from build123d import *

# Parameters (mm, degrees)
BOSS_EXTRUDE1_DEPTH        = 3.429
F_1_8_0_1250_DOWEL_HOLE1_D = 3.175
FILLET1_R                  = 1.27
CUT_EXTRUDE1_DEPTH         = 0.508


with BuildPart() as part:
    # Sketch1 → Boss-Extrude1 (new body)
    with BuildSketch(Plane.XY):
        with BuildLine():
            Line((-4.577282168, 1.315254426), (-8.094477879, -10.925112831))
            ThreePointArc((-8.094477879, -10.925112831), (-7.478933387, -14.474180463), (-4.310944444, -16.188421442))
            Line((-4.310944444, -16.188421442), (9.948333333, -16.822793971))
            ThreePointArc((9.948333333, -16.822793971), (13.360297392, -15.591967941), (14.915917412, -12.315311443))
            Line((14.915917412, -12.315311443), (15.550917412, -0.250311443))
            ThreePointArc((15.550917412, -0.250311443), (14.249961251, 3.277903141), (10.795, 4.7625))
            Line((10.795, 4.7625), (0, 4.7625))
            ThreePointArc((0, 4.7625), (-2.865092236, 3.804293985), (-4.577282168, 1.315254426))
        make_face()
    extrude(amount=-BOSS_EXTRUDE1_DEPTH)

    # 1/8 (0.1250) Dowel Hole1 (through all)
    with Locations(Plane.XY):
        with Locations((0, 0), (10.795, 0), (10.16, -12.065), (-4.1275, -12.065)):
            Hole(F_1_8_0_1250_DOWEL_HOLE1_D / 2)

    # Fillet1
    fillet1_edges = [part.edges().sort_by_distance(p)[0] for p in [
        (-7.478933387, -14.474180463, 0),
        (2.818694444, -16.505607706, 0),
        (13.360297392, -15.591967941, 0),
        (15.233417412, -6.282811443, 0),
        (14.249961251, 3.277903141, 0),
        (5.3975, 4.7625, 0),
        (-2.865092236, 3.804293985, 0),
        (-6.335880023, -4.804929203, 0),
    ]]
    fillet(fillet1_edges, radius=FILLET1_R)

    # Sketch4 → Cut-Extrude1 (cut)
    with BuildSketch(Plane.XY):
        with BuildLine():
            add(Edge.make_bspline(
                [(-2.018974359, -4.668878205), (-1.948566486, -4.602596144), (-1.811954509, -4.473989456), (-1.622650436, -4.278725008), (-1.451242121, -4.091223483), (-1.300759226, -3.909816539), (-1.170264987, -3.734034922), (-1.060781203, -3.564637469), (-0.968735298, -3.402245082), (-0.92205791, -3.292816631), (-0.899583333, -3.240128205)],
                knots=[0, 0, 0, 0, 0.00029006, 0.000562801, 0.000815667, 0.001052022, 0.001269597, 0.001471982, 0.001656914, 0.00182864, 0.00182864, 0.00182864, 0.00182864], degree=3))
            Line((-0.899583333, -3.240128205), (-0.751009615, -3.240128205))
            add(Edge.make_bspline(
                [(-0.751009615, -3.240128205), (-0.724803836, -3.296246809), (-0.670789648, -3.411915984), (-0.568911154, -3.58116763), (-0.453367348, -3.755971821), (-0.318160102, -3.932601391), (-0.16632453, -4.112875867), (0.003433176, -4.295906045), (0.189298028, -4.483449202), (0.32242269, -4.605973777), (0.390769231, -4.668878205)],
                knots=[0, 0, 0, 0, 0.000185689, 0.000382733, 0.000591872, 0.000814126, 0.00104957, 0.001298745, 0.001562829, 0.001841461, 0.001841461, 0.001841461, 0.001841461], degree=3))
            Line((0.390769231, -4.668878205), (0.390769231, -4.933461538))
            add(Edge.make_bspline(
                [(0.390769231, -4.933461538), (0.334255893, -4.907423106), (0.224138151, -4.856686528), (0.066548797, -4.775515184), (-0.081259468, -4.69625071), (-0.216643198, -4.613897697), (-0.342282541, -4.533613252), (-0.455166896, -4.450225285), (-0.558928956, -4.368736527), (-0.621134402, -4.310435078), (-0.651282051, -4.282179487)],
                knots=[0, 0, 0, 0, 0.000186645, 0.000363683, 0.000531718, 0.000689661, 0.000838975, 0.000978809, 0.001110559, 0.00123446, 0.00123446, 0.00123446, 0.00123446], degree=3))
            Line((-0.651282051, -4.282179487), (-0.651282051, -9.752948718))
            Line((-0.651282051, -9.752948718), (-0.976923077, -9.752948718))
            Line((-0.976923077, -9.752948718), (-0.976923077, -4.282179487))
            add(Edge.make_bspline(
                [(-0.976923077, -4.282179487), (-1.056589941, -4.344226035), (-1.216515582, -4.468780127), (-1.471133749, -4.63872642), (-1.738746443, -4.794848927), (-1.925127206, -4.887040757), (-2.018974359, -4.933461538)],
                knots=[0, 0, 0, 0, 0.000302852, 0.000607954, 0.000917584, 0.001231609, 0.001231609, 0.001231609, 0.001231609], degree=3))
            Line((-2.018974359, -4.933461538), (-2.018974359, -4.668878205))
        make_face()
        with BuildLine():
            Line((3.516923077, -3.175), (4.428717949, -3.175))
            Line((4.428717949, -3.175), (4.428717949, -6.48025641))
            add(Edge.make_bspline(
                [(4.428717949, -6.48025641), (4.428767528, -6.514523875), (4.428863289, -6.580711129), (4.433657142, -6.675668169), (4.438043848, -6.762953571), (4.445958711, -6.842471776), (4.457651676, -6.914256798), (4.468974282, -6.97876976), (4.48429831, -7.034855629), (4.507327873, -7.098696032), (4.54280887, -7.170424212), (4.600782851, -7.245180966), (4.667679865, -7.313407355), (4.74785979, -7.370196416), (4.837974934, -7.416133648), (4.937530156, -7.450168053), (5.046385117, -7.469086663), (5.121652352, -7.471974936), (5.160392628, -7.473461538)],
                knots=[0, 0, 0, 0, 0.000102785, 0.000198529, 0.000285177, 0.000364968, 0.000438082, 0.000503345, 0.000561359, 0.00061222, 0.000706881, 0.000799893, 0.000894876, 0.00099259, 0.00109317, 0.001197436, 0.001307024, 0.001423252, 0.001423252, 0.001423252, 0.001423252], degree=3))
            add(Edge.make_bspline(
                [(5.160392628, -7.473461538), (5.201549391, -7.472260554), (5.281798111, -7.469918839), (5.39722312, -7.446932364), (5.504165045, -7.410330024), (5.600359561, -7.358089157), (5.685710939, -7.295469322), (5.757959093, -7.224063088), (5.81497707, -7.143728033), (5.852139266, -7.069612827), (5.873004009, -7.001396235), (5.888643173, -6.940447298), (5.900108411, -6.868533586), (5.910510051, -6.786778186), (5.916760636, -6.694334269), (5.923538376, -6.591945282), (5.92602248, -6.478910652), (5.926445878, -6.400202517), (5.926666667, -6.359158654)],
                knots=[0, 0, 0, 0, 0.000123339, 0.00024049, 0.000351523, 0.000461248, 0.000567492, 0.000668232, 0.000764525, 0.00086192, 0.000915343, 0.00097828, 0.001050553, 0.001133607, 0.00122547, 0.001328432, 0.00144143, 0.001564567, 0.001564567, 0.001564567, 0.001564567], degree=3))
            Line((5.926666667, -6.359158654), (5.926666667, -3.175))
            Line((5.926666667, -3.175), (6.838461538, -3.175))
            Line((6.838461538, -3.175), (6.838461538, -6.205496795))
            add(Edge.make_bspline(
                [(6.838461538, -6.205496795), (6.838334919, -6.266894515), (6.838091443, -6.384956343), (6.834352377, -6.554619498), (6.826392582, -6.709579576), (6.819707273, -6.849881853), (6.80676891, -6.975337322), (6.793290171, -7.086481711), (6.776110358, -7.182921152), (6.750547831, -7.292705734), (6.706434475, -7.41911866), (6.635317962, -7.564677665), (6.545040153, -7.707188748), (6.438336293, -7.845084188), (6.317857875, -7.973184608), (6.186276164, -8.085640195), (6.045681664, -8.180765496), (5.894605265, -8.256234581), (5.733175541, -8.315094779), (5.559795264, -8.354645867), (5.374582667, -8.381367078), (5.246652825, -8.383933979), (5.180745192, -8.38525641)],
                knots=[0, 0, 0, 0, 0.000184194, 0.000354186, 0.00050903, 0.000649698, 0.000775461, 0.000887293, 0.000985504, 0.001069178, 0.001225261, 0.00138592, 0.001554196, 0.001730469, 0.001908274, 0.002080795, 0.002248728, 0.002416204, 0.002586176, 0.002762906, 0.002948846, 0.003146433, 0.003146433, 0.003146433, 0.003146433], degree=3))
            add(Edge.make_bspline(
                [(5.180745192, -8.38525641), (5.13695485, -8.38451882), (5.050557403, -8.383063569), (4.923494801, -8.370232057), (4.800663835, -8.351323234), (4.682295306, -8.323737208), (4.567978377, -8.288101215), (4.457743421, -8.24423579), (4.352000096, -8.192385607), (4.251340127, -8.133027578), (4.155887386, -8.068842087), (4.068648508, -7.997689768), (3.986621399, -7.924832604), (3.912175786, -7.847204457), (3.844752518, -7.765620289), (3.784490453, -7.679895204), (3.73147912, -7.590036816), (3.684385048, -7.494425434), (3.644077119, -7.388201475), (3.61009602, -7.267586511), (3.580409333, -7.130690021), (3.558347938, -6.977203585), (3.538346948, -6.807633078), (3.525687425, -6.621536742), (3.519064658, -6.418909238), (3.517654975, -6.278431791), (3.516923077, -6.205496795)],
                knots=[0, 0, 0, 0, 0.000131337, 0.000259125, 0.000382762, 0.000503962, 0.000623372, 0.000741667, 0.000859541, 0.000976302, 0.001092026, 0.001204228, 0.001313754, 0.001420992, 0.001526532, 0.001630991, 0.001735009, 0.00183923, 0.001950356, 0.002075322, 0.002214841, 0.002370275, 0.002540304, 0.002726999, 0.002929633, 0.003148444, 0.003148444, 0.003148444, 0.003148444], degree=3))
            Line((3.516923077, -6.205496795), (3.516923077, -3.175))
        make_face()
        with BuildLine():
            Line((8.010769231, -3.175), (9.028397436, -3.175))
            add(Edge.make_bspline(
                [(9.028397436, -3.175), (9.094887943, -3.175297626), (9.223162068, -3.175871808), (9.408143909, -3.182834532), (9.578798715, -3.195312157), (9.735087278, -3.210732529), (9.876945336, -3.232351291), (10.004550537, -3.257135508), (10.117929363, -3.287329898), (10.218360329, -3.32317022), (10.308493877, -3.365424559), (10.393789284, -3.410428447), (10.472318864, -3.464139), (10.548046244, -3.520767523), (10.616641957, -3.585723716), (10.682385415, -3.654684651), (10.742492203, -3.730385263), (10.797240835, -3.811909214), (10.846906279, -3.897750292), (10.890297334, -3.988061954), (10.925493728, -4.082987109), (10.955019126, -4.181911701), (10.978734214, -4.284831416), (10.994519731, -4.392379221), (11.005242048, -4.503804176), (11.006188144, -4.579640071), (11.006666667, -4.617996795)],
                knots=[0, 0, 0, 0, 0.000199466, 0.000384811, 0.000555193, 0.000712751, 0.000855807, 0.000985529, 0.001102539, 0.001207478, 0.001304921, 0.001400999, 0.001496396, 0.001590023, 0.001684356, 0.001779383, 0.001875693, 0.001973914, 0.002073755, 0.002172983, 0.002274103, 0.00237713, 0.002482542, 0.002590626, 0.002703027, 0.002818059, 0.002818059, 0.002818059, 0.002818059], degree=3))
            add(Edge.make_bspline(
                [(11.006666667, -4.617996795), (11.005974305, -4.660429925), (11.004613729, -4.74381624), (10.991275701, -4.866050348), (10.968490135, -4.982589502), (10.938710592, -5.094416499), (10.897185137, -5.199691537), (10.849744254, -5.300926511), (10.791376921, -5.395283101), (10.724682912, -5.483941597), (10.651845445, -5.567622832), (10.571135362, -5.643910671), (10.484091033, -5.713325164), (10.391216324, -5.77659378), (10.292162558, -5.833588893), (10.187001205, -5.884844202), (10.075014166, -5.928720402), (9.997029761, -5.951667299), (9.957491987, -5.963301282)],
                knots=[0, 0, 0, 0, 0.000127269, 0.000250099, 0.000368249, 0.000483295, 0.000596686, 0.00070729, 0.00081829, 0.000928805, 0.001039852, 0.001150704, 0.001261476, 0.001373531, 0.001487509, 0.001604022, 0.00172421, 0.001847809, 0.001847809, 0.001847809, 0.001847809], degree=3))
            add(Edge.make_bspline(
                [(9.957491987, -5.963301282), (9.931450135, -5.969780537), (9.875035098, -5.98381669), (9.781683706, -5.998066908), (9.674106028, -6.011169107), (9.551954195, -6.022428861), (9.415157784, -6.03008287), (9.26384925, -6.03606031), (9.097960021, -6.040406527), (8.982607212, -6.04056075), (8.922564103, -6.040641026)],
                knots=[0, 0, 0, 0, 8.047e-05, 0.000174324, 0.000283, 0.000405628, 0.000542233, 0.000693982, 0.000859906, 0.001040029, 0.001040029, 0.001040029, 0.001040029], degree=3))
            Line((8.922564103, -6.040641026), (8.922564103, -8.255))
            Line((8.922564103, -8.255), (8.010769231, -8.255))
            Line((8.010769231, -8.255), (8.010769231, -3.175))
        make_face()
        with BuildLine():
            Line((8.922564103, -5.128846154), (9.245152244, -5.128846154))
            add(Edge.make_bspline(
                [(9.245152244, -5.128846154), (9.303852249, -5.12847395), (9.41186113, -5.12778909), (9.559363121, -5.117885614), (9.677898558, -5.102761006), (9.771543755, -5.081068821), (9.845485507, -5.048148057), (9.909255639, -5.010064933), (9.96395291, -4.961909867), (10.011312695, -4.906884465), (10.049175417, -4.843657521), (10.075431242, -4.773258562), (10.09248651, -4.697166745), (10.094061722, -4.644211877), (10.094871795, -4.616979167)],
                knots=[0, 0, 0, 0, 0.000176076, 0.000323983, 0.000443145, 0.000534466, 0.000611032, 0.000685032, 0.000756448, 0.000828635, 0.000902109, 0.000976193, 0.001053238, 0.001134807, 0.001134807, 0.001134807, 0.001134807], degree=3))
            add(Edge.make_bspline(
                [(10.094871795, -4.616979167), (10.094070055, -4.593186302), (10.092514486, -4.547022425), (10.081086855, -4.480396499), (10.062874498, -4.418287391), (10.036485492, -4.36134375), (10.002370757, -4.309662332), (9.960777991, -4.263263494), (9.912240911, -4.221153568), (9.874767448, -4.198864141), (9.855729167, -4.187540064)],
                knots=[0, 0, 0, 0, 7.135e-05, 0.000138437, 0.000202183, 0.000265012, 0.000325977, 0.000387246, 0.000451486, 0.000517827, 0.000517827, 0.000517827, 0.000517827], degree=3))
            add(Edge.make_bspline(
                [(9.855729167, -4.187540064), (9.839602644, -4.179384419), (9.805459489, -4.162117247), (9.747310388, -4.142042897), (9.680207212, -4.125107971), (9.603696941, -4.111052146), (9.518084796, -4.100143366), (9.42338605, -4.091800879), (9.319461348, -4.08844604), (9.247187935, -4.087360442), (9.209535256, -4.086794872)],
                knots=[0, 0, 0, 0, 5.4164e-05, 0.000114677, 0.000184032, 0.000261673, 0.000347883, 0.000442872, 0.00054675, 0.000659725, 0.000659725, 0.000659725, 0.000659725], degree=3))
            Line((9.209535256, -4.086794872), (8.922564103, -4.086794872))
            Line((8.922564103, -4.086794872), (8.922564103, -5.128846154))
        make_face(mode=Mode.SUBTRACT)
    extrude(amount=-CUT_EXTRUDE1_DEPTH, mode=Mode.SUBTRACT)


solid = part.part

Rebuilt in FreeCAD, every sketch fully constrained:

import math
import FreeCAD as App
import Part
import Sketcher

V = App.Vector
Q = App.Units.Quantity


def edges_at(feature, points):
    """Names of the edges that pass closest to the given points."""
    edges = feature.Shape.Edges
    near = lambda p: min(range(len(edges)), key=lambda i: edges[i].distToShape(Part.Vertex(*p))[0])
    return sorted({f"Edge{near(p) + 1}" for p in points})

doc = App.newDocument("Part")
params = doc.addObject("Spreadsheet::Sheet", "Params")
for row, (alias, value) in enumerate([
    ("sketch1_radius", "0.1875 in"),
    ("sketch1_width", "0.425 in"),
    ("pad1_length", "0.135 in"),
    ("sketch2_diameter", "0.125 in"),
    ("hole_diameter", "0.125 in"),
    ("fillet_radius", "0.05 in"),
    ("sketch3_height", "0.2 in"),
    ("pocket1_length", "0.02 in"),
], start=1):
    params.set(f"A{row}", alias)
    params.set(f"B{row}", "=" + value)
    params.setAlias(f"B{row}", alias)

body = doc.addObject("PartDesign::Body", "Body")

sketch1 = body.newObject("Sketcher::SketchObject", "Sketch")
sketch1.AttachmentSupport = (doc.getObject("XY_Plane"), [""])
sketch1.MapMode = "FlatFace"
sketch1.addGeometry([
    Part.LineSegment(V(-4.6, 1.3, 0), V(-8.1, -10.9, 0)),
    Part.ArcOfCircle(Part.Circle(V(-4.1, -12.1, 0), V(0, 0, 1), 4.1), math.radians(164), math.radians(267)),
    Part.LineSegment(V(-4.3, -16.2, 0), V(9.9, -16.8, 0)),
    Part.ArcOfCircle(Part.Circle(V(10.2, -12.1, 0), V(0, 0, 1), 4.8), math.radians(-93), math.radians(-3)),
    Part.LineSegment(V(14.9, -12.3, 0), V(15.6, -0.3, 0)),
    Part.ArcOfCircle(Part.Circle(V(10.8, 0, 0), V(0, 0, 1), 4.8), math.radians(-3), math.radians(90)),
    Part.LineSegment(V(10.8, 4.8, 0), V(0, 4.8, 0)),
    Part.ArcOfCircle(Part.Circle(V(0, 0, 0), V(0, 0, 1), 4.8), math.radians(90), math.radians(164)),
], False)
sketch1.addConstraint([
    Sketcher.Constraint("Tangent", 0, 2, 1, 1),
    Sketcher.Constraint("Tangent", 1, 2, 2, 1),
    Sketcher.Constraint("Tangent", 2, 2, 3, 1),
    Sketcher.Constraint("Tangent", 3, 2, 4, 1),
    Sketcher.Constraint("Tangent", 4, 2, 5, 1),
    Sketcher.Constraint("Tangent", 5, 2, 6, 1),
    Sketcher.Constraint("Tangent", 6, 2, 7, 1),
    Sketcher.Constraint("Tangent", 7, 2, 0, 1),
    Sketcher.Constraint("Horizontal", 6),
    Sketcher.Constraint("Coincident", 7, 3, -1, 1),
    Sketcher.Constraint("Equal", 3, 5),
    Sketcher.Constraint("Equal", 5, 7),
    Sketcher.Constraint("Horizontal", 1, 3, 3, 3),
    Sketcher.Constraint("Radius", 3, Q("0.1875 in")),
    Sketcher.Constraint("DistanceX", -1, 1, 3, 3, Q("0.4 in")),
    Sketcher.Constraint("Radius", 1, Q("0.1625 in")),
    Sketcher.Constraint("DistanceX", 6, 2, 6, 1, Q("0.425 in")),
    Sketcher.Constraint("DistanceY", 1, 3, -1, 1, Q("0.475 in")),
    Sketcher.Constraint("DistanceX", 1, 3, 3, 3, Q("0.5625 in")),
])
sketch1.setExpression("Constraints[13]", "Params.sketch1_radius")
sketch1.setExpression("Constraints[16]", "Params.sketch1_width")
pad1 = body.newObject("PartDesign::Pad", "Pad")
pad1.Profile = sketch1
pad1.setExpression("Length", "Params.pad1_length")
pad1.Reversed = True

sketch2 = body.newObject("Sketcher::SketchObject", "Sketch001")
sketch2.AttachmentSupport = (doc.getObject("XY_Plane"), [""])
sketch2.MapMode = "FlatFace"
sketch2.addGeometry([
    Part.Circle(V(0, 0, 0), V(0, 0, 1), 1.6),
    Part.Circle(V(10.8, 0, 0), V(0, 0, 1), 1.6),
    Part.Circle(V(10.2, -12.1, 0), V(0, 0, 1), 1.6),
    Part.Circle(V(-4.1, -12.1, 0), V(0, 0, 1), 1.6),
], False)
sketch2.addConstraint([
    Sketcher.Constraint("Coincident", 0, 3, -1, 1),
    Sketcher.Constraint("Equal", 0, 1),
    Sketcher.Constraint("Equal", 1, 2),
    Sketcher.Constraint("Equal", 2, 3),
    Sketcher.Constraint("PointOnObject", 1, 3, -1),
    Sketcher.Constraint("Horizontal", 2, 3, 3, 3),
    Sketcher.Constraint("Diameter", 0, Q("0.125 in")),
    Sketcher.Constraint("DistanceX", -1, 1, 2, 3, Q("0.4 in")),
    Sketcher.Constraint("DistanceX", -1, 1, 1, 3, Q("0.425 in")),
    Sketcher.Constraint("DistanceY", 2, 3, -1, 1, Q("0.475 in")),
    Sketcher.Constraint("DistanceX", 3, 3, 2, 3, Q("0.5625 in")),
])
sketch2.setExpression("Constraints[6]", "Params.sketch2_diameter")
doc.recompute()
hole = body.newObject("PartDesign::Hole", "Hole")
hole.Profile = sketch2
hole.ThreadType = "None"
hole.setExpression("Diameter", "Params.hole_diameter")
hole.DepthType = "ThroughAll"
doc.recompute()

fillet = body.newObject("PartDesign::Fillet", "Fillet")
fillet.Base = (hole, edges_at(hole, [
    (-7.479, -14.474, 0),
    (2.819, -16.506, 0),
    (13.36, -15.592, 0),
    (15.233, -6.283, 0),
    (14.25, 3.278, 0),
    (5.397, 4.763, 0),
    (-2.865, 3.804, 0),
    (-6.336, -4.805, 0),
]))
fillet.setExpression("Radius", "Params.fillet_radius")

sketch3 = body.newObject("Sketcher::SketchObject", "Sketch002")
sketch3.AttachmentSupport = (doc.getObject("XY_Plane"), [""])
sketch3.MapMode = "FlatFace"
sketch3.addGeometry([
    Part.BSplineCurve([V(-2.018974, -4.668878, 0), V(-1.948566, -4.602596, 0), V(-1.811955, -4.473989, 0), V(-1.62265, -4.278725, 0), V(-1.451242, -4.091223, 0), V(-1.300759, -3.909817, 0), V(-1.170265, -3.734035, 0), V(-1.060781, -3.564637, 0), V(-0.968735, -3.402245, 0), V(-0.922058, -3.292817, 0), V(-0.899583, -3.240128, 0)], [4, 1, 1, 1, 1, 1, 1, 1, 4], [0, 0.00029006, 0.000562801, 0.000815667, 0.001052022, 0.001269597, 0.001471982, 0.001656914, 0.00182864], False, 3, [1, 1, 1, 1, 1, 1, 1, 1, 1, 1, 1], False),
    Part.LineSegment(V(-2.018974, -4.668878, 0), V(-2.018974, -4.933462, 0)),
    Part.BSplineCurve([V(-0.976923, -4.282179, 0), V(-1.05659, -4.344226, 0), V(-1.216516, -4.46878, 0), V(-1.471134, -4.638726, 0), V(-1.738746, -4.794849, 0), V(-1.925127, -4.887041, 0), V(-2.018974, -4.933462, 0)], [4, 1, 1, 1, 4], [0, 0.000302852, 0.000607954, 0.000917584, 0.001231609], False, 3, [1, 1, 1, 1, 1, 1, 1], False),
    Part.LineSegment(V(-0.976923, -4.282179, 0), V(-0.976923, -9.752949, 0)),
    Part.LineSegment(V(-0.976923, -9.752949, 0), V(-0.651282, -9.752949, 0)),
    Part.LineSegment(V(-0.651282, -9.752949, 0), V(-0.651282, -4.282179, 0)),
    Part.BSplineCurve([V(0.390769, -4.933462, 0), V(0.334256, -4.907423, 0), V(0.224138, -4.856687, 0), V(0.066549, -4.775515, 0), V(-0.081259, -4.696251, 0), V(-0.216643, -4.613898, 0), V(-0.342283, -4.533613, 0), V(-0.455167, -4.450225, 0), V(-0.558929, -4.368737, 0), V(-0.621134, -4.310435, 0), V(-0.651282, -4.282179, 0)], [4, 1, 1, 1, 1, 1, 1, 1, 4], [0, 0.000186645, 0.000363683, 0.000531718, 0.000689661, 0.000838975, 0.000978809, 0.001110559, 0.00123446], False, 3, [1, 1, 1, 1, 1, 1, 1, 1, 1, 1, 1], False),
    Part.LineSegment(V(0.390769, -4.933462, 0), V(0.390769, -4.668878, 0)),
    Part.BSplineCurve([V(-0.75101, -3.240128, 0), V(-0.724804, -3.296247, 0), V(-0.67079, -3.411916, 0), V(-0.568911, -3.581168, 0), V(-0.453367, -3.755972, 0), V(-0.31816, -3.932601, 0), V(-0.166325, -4.112876, 0), V(0.003433, -4.295906, 0), V(0.189298, -4.483449, 0), V(0.322423, -4.605974, 0), V(0.390769, -4.668878, 0)], [4, 1, 1, 1, 1, 1, 1, 1, 4], [0, 0.000185689, 0.000382733, 0.000591872, 0.000814126, 0.00104957, 0.001298745, 0.001562829, 0.001841461], False, 3, [1, 1, 1, 1, 1, 1, 1, 1, 1, 1, 1], False),
    Part.LineSegment(V(-0.75101, -3.240128, 0), V(-0.899583, -3.240128, 0)),
    Part.LineSegment(V(4.428718, -3.175, 0), V(3.516923, -3.175, 0)),
    Part.LineSegment(V(3.516923, -3.175, 0), V(3.516923, -6.205497, 0)),
    Part.BSplineCurve([V(5.180745, -8.385256, 0), V(5.136955, -8.384519, 0), V(5.050557, -8.383064, 0), V(4.923495, -8.370232, 0), V(4.800664, -8.351323, 0), V(4.682295, -8.323737, 0), V(4.567978, -8.288101, 0), V(4.457743, -8.244236, 0), V(4.352, -8.192386, 0), V(4.25134, -8.133028, 0), V(4.155887, -8.068842, 0), V(4.068649, -7.99769, 0), V(3.986621, -7.924833, 0), V(3.912176, -7.847204, 0), V(3.844753, -7.76562, 0), V(3.78449, -7.679895, 0), V(3.731479, -7.590037, 0), V(3.684385, -7.494425, 0), V(3.644077, -7.388201, 0), V(3.610096, -7.267587, 0), V(3.580409, -7.13069, 0), V(3.558348, -6.977204, 0), V(3.538347, -6.807633, 0), V(3.525687, -6.621537, 0), V(3.519065, -6.418909, 0), V(3.517655, -6.278432, 0), V(3.516923, -6.205497, 0)], [4, 1, 1, 1, 1, 1, 1, 1, 1, 1, 1, 1, 1, 1, 1, 1, 1, 1, 1, 1, 1, 1, 1, 1, 4], [0, 0.000131337, 0.000259125, 0.000382762, 0.000503962, 0.000623372, 0.000741667, 0.000859541, 0.000976302, 0.001092026, 0.001204228, 0.001313754, 0.001420992, 0.001526532, 0.001630991, 0.001735009, 0.00183923, 0.001950356, 0.002075322, 0.002214841, 0.002370275, 0.002540304, 0.002726999, 0.002929633, 0.003148444], False, 3, [1, 1, 1, 1, 1, 1, 1, 1, 1, 1, 1, 1, 1, 1, 1, 1, 1, 1, 1, 1, 1, 1, 1, 1, 1, 1, 1], False),
    Part.BSplineCurve([V(6.838462, -6.205497, 0), V(6.838335, -6.266895, 0), V(6.838091, -6.384956, 0), V(6.834352, -6.554619, 0), V(6.826393, -6.70958, 0), V(6.819707, -6.849882, 0), V(6.806769, -6.975337, 0), V(6.79329, -7.086482, 0), V(6.77611, -7.182921, 0), V(6.750548, -7.292706, 0), V(6.706434, -7.419119, 0), V(6.635318, -7.564678, 0), V(6.54504, -7.707189, 0), V(6.438336, -7.845084, 0), V(6.317858, -7.973185, 0), V(6.186276, -8.08564, 0), V(6.045682, -8.180765, 0), V(5.894605, -8.256235, 0), V(5.733176, -8.315095, 0), V(5.559795, -8.354646, 0), V(5.374583, -8.381367, 0), V(5.246653, -8.383934, 0), V(5.180745, -8.385256, 0)], [4, 1, 1, 1, 1, 1, 1, 1, 1, 1, 1, 1, 1, 1, 1, 1, 1, 1, 1, 1, 4], [0, 0.000184194, 0.000354186, 0.00050903, 0.000649698, 0.000775461, 0.000887293, 0.000985504, 0.001069178, 0.001225261, 0.00138592, 0.001554196, 0.001730469, 0.001908274, 0.002080795, 0.002248728, 0.002416204, 0.002586176, 0.002762906, 0.002948846, 0.003146433], False, 3, [1, 1, 1, 1, 1, 1, 1, 1, 1, 1, 1, 1, 1, 1, 1, 1, 1, 1, 1, 1, 1, 1, 1], False),
    Part.LineSegment(V(6.838462, -6.205497, 0), V(6.838462, -3.175, 0)),
    Part.LineSegment(V(6.838462, -3.175, 0), V(5.926667, -3.175, 0)),
    Part.LineSegment(V(5.926667, -3.175, 0), V(5.926667, -6.359159, 0)),
    Part.BSplineCurve([V(5.160393, -7.473462, 0), V(5.201549, -7.472261, 0), V(5.281798, -7.469919, 0), V(5.397223, -7.446932, 0), V(5.504165, -7.41033, 0), V(5.60036, -7.358089, 0), V(5.685711, -7.295469, 0), V(5.757959, -7.224063, 0), V(5.814977, -7.143728, 0), V(5.852139, -7.069613, 0), V(5.873004, -7.001396, 0), V(5.888643, -6.940447, 0), V(5.900108, -6.868534, 0), V(5.91051, -6.786778, 0), V(5.916761, -6.694334, 0), V(5.923538, -6.591945, 0), V(5.926022, -6.478911, 0), V(5.926446, -6.400203, 0), V(5.926667, -6.359159, 0)], [4, 1, 1, 1, 1, 1, 1, 1, 1, 1, 1, 1, 1, 1, 1, 1, 4], [0, 0.000123339, 0.00024049, 0.000351523, 0.000461248, 0.000567492, 0.000668232, 0.000764525, 0.00086192, 0.000915343, 0.00097828, 0.001050553, 0.001133607, 0.00122547, 0.001328432, 0.00144143, 0.001564567], False, 3, [1, 1, 1, 1, 1, 1, 1, 1, 1, 1, 1, 1, 1, 1, 1, 1, 1, 1, 1], False),
    Part.BSplineCurve([V(4.428718, -6.480256, 0), V(4.428768, -6.514524, 0), V(4.428863, -6.580711, 0), V(4.433657, -6.675668, 0), V(4.438044, -6.762954, 0), V(4.445959, -6.842472, 0), V(4.457652, -6.914257, 0), V(4.468974, -6.97877, 0), V(4.484298, -7.034856, 0), V(4.507328, -7.098696, 0), V(4.542809, -7.170424, 0), V(4.600783, -7.245181, 0), V(4.66768, -7.313407, 0), V(4.74786, -7.370196, 0), V(4.837975, -7.416134, 0), V(4.93753, -7.450168, 0), V(5.046385, -7.469087, 0), V(5.121652, -7.471975, 0), V(5.160393, -7.473462, 0)], [4, 1, 1, 1, 1, 1, 1, 1, 1, 1, 1, 1, 1, 1, 1, 1, 4], [0, 0.000102785, 0.000198529, 0.000285177, 0.000364968, 0.000438082, 0.000503345, 0.000561359, 0.00061222, 0.000706881, 0.000799893, 0.000894876, 0.00099259, 0.00109317, 0.001197436, 0.001307024, 0.001423252], False, 3, [1, 1, 1, 1, 1, 1, 1, 1, 1, 1, 1, 1, 1, 1, 1, 1, 1, 1, 1], False),
    Part.LineSegment(V(4.428718, -6.480256, 0), V(4.428718, -3.175, 0)),
    Part.LineSegment(V(9.028397, -3.175, 0), V(8.010769, -3.175, 0)),
    Part.LineSegment(V(8.010769, -3.175, 0), V(8.010769, -8.255, 0)),
    Part.LineSegment(V(8.010769, -8.255, 0), V(8.922564, -8.255, 0)),
    Part.LineSegment(V(8.922564, -8.255, 0), V(8.922564, -6.040641, 0)),
    Part.BSplineCurve([V(9.957492, -5.963301, 0), V(9.93145, -5.969781, 0), V(9.875035, -5.983817, 0), V(9.781684, -5.998067, 0), V(9.674106, -6.011169, 0), V(9.551954, -6.022429, 0), V(9.415158, -6.030083, 0), V(9.263849, -6.03606, 0), V(9.09796, -6.040407, 0), V(8.982607, -6.040561, 0), V(8.922564, -6.040641, 0)], [4, 1, 1, 1, 1, 1, 1, 1, 4], [0, 0.00008047, 0.000174324, 0.000283, 0.000405628, 0.000542233, 0.000693982, 0.000859906, 0.001040029], False, 3, [1, 1, 1, 1, 1, 1, 1, 1, 1, 1, 1], False),
    Part.BSplineCurve([V(11.006667, -4.617997, 0), V(11.005974, -4.66043, 0), V(11.004614, -4.743816, 0), V(10.991276, -4.86605, 0), V(10.96849, -4.98259, 0), V(10.938711, -5.094416, 0), V(10.897185, -5.199692, 0), V(10.849744, -5.300927, 0), V(10.791377, -5.395283, 0), V(10.724683, -5.483942, 0), V(10.651845, -5.567623, 0), V(10.571135, -5.643911, 0), V(10.484091, -5.713325, 0), V(10.391216, -5.776594, 0), V(10.292163, -5.833589, 0), V(10.187001, -5.884844, 0), V(10.075014, -5.92872, 0), V(9.99703, -5.951667, 0), V(9.957492, -5.963301, 0)], [4, 1, 1, 1, 1, 1, 1, 1, 1, 1, 1, 1, 1, 1, 1, 1, 4], [0, 0.000127269, 0.000250099, 0.000368249, 0.000483295, 0.000596686, 0.00070729, 0.00081829, 0.000928805, 0.001039852, 0.001150704, 0.001261476, 0.001373531, 0.001487509, 0.001604022, 0.00172421, 0.001847809], False, 3, [1, 1, 1, 1, 1, 1, 1, 1, 1, 1, 1, 1, 1, 1, 1, 1, 1, 1, 1], False),
    Part.BSplineCurve([V(9.028397, -3.175, 0), V(9.094888, -3.175298, 0), V(9.223162, -3.175872, 0), V(9.408144, -3.182835, 0), V(9.578799, -3.195312, 0), V(9.735087, -3.210733, 0), V(9.876945, -3.232351, 0), V(10.004551, -3.257136, 0), V(10.117929, -3.28733, 0), V(10.21836, -3.32317, 0), V(10.308494, -3.365425, 0), V(10.393789, -3.410428, 0), V(10.472319, -3.464139, 0), V(10.548046, -3.520768, 0), V(10.616642, -3.585724, 0), V(10.682385, -3.654685, 0), V(10.742492, -3.730385, 0), V(10.797241, -3.811909, 0), V(10.846906, -3.89775, 0), V(10.890297, -3.988062, 0), V(10.925494, -4.082987, 0), V(10.955019, -4.181912, 0), V(10.978734, -4.284831, 0), V(10.99452, -4.392379, 0), V(11.005242, -4.503804, 0), V(11.006188, -4.57964, 0), V(11.006667, -4.617997, 0)], [4, 1, 1, 1, 1, 1, 1, 1, 1, 1, 1, 1, 1, 1, 1, 1, 1, 1, 1, 1, 1, 1, 1, 1, 4], [0, 0.000199466, 0.000384811, 0.000555193, 0.000712751, 0.000855807, 0.000985529, 0.001102539, 0.001207478, 0.001304921, 0.001400999, 0.001496396, 0.001590023, 0.001684356, 0.001779383, 0.001875693, 0.001973914, 0.002073755, 0.002172983, 0.002274103, 0.00237713, 0.002482542, 0.002590626, 0.002703027, 0.002818059], False, 3, [1, 1, 1, 1, 1, 1, 1, 1, 1, 1, 1, 1, 1, 1, 1, 1, 1, 1, 1, 1, 1, 1, 1, 1, 1, 1, 1], False),
    Part.LineSegment(V(8.922564, -5.128846, 0), V(8.922564, -4.086795, 0)),
    Part.LineSegment(V(8.922564, -4.086795, 0), V(9.209535, -4.086795, 0)),
    Part.BSplineCurve([V(9.855729, -4.18754, 0), V(9.839603, -4.179384, 0), V(9.805459, -4.162117, 0), V(9.74731, -4.142043, 0), V(9.680207, -4.125108, 0), V(9.603697, -4.111052, 0), V(9.518085, -4.100143, 0), V(9.423386, -4.091801, 0), V(9.319461, -4.088446, 0), V(9.247188, -4.08736, 0), V(9.209535, -4.086795, 0)], [4, 1, 1, 1, 1, 1, 1, 1, 4], [0, 0.000054164, 0.000114677, 0.000184032, 0.000261673, 0.000347883, 0.000442872, 0.00054675, 0.000659725], False, 3, [1, 1, 1, 1, 1, 1, 1, 1, 1, 1, 1], False),
    Part.BSplineCurve([V(10.094872, -4.616979, 0), V(10.09407, -4.593186, 0), V(10.092514, -4.547022, 0), V(10.081087, -4.480396, 0), V(10.062874, -4.418287, 0), V(10.036485, -4.361344, 0), V(10.002371, -4.309662, 0), V(9.960778, -4.263263, 0), V(9.912241, -4.221154, 0), V(9.874767, -4.198864, 0), V(9.855729, -4.18754, 0)], [4, 1, 1, 1, 1, 1, 1, 1, 4], [0, 0.00007135, 0.000138437, 0.000202183, 0.000265012, 0.000325977, 0.000387246, 0.000451486, 0.000517827], False, 3, [1, 1, 1, 1, 1, 1, 1, 1, 1, 1, 1], False),
    Part.BSplineCurve([V(9.245152, -5.128846, 0), V(9.303852, -5.128474, 0), V(9.411861, -5.127789, 0), V(9.559363, -5.117886, 0), V(9.677899, -5.102761, 0), V(9.771544, -5.081069, 0), V(9.845486, -5.048148, 0), V(9.909256, -5.010065, 0), V(9.963953, -4.96191, 0), V(10.011313, -4.906884, 0), V(10.049175, -4.843658, 0), V(10.075431, -4.773259, 0), V(10.092487, -4.697167, 0), V(10.094062, -4.644212, 0), V(10.094872, -4.616979, 0)], [4, 1, 1, 1, 1, 1, 1, 1, 1, 1, 1, 1, 4], [0, 0.000176076, 0.000323983, 0.000443145, 0.000534466, 0.000611032, 0.000685032, 0.000756448, 0.000828635, 0.000902109, 0.000976193, 0.001053238, 0.001134807], False, 3, [1, 1, 1, 1, 1, 1, 1, 1, 1, 1, 1, 1, 1, 1, 1], False),
    Part.LineSegment(V(9.245152, -5.128846, 0), V(8.922564, -5.128846, 0)),
], False)
sketch3.addConstraint([
    Sketcher.Constraint("Block", 0),
    Sketcher.Constraint("Block", 2),
    Sketcher.Constraint("Block", 6),
    Sketcher.Constraint("Block", 8),
    Sketcher.Constraint("Block", 12),
    Sketcher.Constraint("Block", 13),
    Sketcher.Constraint("Block", 17),
    Sketcher.Constraint("Block", 18),
    Sketcher.Constraint("Block", 24),
    Sketcher.Constraint("Block", 25),
    Sketcher.Constraint("Block", 26),
    Sketcher.Constraint("Block", 29),
    Sketcher.Constraint("Block", 30),
    Sketcher.Constraint("Block", 31),
    Sketcher.Constraint("Coincident", 0, 1, 1, 1),
    Sketcher.Constraint("Coincident", 1, 2, 2, 2),
    Sketcher.Constraint("Coincident", 2, 1, 3, 1),
    Sketcher.Constraint("Coincident", 3, 2, 4, 1),
    Sketcher.Constraint("Coincident", 4, 2, 5, 1),
    Sketcher.Constraint("Coincident", 5, 2, 6, 2),
    Sketcher.Constraint("Coincident", 6, 1, 7, 1),
    Sketcher.Constraint("Coincident", 7, 2, 8, 2),
    Sketcher.Constraint("Coincident", 8, 1, 9, 1),
    Sketcher.Constraint("Coincident", 9, 2, 0, 2),
    Sketcher.Constraint("Coincident", 10, 2, 11, 1),
    Sketcher.Constraint("Coincident", 11, 2, 12, 2),
    Sketcher.Constraint("Coincident", 13, 1, 14, 1),
    Sketcher.Constraint("Coincident", 14, 2, 15, 1),
    Sketcher.Constraint("Coincident", 15, 2, 16, 1),
    Sketcher.Constraint("Coincident", 16, 2, 17, 2),
    Sketcher.Constraint("Coincident", 18, 1, 19, 1),
    Sketcher.Constraint("Coincident", 19, 2, 10, 1),
    Sketcher.Constraint("Coincident", 20, 2, 21, 1),
    Sketcher.Constraint("Coincident", 21, 2, 22, 1),
    Sketcher.Constraint("Coincident", 22, 2, 23, 1),
    Sketcher.Constraint("Coincident", 23, 2, 24, 2),
    Sketcher.Constraint("Coincident", 26, 1, 20, 1),
    Sketcher.Constraint("Coincident", 27, 2, 28, 1),
    Sketcher.Constraint("Coincident", 28, 2, 29, 2),
    Sketcher.Constraint("Coincident", 31, 1, 32, 1),
    Sketcher.Constraint("Coincident", 32, 2, 27, 1),
    Sketcher.Constraint("Vertical", 3),
    Sketcher.Constraint("Horizontal", 4),
    Sketcher.Constraint("Vertical", 5),
    Sketcher.Constraint("Horizontal", 10),
    Sketcher.Constraint("Vertical", 11),
    Sketcher.Constraint("Vertical", 14),
    Sketcher.Constraint("Horizontal", 15),
    Sketcher.Constraint("Vertical", 16),
    Sketcher.Constraint("Vertical", 19),
    Sketcher.Constraint("Horizontal", 20),
    Sketcher.Constraint("Vertical", 21),
    Sketcher.Constraint("Horizontal", 22),
    Sketcher.Constraint("Vertical", 23),
    Sketcher.Constraint("Vertical", 27),
    Sketcher.Constraint("Horizontal", 28),
    Sketcher.Constraint("Horizontal", 32),
    Sketcher.Constraint("DistanceY", 21, 2, 21, 1, Q("0.2 in")),
    Sketcher.Constraint("DistanceY", 21, 2, 14, 2, Q("0.2 in")),
    Sketcher.Constraint("DistanceY", 10, 2, -1, 1, Q("0.125 in")),
    Sketcher.Constraint("DistanceX", 20, 2, 20, 1, 1.017628),
    Sketcher.Constraint("DistanceX", 28, 1, 28, 2, 0.286971),
    Sketcher.Constraint("DistanceY", 3, 2, 3, 1, 5.470769),
])
sketch3.setExpression("Constraints[57]", "Params.sketch3_height")
pocket1 = body.newObject("PartDesign::Pocket", "Pocket")
pocket1.Profile = sketch3
pocket1.setExpression("Length", "Params.pocket1_length")

doc.recompute()
